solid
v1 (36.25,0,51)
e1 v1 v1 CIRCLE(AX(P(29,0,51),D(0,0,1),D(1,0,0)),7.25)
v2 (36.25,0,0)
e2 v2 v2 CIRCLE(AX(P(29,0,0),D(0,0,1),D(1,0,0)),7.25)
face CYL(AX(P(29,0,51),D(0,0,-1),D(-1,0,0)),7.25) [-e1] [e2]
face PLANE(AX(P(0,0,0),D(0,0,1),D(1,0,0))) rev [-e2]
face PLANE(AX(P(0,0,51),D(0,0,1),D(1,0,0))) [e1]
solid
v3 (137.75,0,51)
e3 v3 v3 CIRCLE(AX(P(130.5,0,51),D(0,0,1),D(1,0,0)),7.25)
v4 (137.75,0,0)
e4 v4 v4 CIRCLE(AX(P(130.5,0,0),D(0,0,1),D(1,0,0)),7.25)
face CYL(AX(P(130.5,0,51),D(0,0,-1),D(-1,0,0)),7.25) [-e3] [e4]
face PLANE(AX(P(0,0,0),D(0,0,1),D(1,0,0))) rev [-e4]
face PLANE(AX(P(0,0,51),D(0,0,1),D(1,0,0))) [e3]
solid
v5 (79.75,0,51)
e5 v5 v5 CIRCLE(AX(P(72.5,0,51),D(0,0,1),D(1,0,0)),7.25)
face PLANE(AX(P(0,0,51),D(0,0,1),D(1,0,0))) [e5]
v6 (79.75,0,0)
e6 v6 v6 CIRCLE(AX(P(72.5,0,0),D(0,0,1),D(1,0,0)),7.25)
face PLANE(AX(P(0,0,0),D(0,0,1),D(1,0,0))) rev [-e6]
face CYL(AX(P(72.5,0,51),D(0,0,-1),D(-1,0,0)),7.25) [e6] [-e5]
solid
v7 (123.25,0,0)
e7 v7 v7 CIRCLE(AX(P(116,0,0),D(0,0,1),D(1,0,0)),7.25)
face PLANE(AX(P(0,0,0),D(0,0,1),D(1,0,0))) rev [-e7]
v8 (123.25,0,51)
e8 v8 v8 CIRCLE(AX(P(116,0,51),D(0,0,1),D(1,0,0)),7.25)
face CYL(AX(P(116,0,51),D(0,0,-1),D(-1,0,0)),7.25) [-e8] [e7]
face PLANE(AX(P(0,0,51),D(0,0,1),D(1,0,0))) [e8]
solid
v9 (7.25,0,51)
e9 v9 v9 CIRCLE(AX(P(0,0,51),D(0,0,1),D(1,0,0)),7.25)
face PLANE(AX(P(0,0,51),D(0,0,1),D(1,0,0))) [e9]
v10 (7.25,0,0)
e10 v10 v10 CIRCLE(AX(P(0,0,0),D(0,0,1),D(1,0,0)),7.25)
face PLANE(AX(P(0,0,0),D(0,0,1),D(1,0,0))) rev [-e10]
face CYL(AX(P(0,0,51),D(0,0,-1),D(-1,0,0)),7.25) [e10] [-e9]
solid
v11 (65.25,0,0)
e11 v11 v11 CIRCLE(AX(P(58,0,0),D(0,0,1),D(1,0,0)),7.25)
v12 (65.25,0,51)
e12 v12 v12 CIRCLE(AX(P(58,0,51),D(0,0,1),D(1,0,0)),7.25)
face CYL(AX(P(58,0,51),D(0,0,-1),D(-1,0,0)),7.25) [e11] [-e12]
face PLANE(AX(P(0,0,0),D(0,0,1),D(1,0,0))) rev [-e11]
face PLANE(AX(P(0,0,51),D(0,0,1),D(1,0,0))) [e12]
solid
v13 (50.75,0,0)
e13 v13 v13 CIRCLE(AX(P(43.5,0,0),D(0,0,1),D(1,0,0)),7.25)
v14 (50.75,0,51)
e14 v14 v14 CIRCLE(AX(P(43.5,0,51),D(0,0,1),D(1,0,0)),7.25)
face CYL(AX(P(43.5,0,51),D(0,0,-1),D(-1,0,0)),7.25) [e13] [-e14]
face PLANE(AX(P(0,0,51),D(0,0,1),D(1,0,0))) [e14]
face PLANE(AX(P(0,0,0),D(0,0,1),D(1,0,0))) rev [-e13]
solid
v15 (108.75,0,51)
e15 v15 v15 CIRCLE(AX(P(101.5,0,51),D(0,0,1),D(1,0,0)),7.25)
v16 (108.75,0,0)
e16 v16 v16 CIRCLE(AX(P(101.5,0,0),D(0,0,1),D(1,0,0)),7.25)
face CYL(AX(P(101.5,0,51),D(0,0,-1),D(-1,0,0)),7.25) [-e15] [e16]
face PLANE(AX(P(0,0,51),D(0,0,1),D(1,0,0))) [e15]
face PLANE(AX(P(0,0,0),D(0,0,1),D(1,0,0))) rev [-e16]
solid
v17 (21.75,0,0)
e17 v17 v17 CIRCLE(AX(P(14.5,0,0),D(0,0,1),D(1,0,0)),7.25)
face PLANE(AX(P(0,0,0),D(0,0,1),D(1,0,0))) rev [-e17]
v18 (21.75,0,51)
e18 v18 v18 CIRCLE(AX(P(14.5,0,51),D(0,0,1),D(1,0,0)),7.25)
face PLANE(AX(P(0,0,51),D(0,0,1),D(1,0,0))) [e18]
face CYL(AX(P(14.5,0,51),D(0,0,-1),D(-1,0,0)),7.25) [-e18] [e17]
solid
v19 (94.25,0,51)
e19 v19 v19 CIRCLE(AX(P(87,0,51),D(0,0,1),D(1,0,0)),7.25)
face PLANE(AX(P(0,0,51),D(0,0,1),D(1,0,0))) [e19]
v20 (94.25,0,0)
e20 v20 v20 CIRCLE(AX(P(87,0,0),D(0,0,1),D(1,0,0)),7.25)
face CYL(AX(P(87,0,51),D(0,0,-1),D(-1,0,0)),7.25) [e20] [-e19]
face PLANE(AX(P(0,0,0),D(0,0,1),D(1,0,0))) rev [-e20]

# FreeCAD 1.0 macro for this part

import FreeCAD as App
import Part
import Sketcher

V = App.Vector

doc = App.newDocument("Part")
body = doc.addObject("PartDesign::Body", "Body")

sketch1 = doc.addObject("Sketcher::SketchObject", "Sketch")
body.addObject(sketch1)
sketch1.AttachmentSupport = (doc.XY_Plane, [""])
sketch1.MapMode = "FlatFace"
sketch1.addGeometry(Part.Circle(V(14.5, 0, 0), V(0, 0, 1), 7.25), False)
sketch1.addConstraint(Sketcher.Constraint("PointOnObject", 0, 3, -1))
sketch1.addConstraint(Sketcher.Constraint("Diameter", 0, 14.5))
sketch1.addConstraint(Sketcher.Constraint("DistanceX", -1, 1, 0, 3, 14.5))
pad1 = doc.addObject("PartDesign::Pad", "Pad")
body.addObject(pad1)
pad1.Profile = sketch1
pad1.Length = 51
body2 = doc.addObject("PartDesign::Body", "Body001")

sketch2 = doc.addObject("Sketcher::SketchObject", "Sketch001")
body2.addObject(sketch2)
sketch2.AttachmentSupport = (doc.getObject("XY_Plane001"), [""])
sketch2.MapMode = "FlatFace"
sketch2.addGeometry(Part.Circle(V(29, 0, 0), V(0, 0, 1), 7.25), False)
sketch2.addConstraint(Sketcher.Constraint("PointOnObject", 0, 3, -1))
sketch2.addConstraint(Sketcher.Constraint("Diameter", 0, 14.5))
sketch2.addConstraint(Sketcher.Constraint("DistanceX", -1, 1, 0, 3, 29.0))
pad2 = doc.addObject("PartDesign::Pad", "Pad001")
body2.addObject(pad2)
pad2.Profile = sketch2
pad2.Length = 51
body3 = doc.addObject("PartDesign::Body", "Body002")

sketch3 = doc.addObject("Sketcher::SketchObject", "Sketch002")
body3.addObject(sketch3)
sketch3.AttachmentSupport = (doc.getObject("XY_Plane002"), [""])
sketch3.MapMode = "FlatFace"
sketch3.addGeometry(Part.Circle(V(43.5, 0, 0), V(0, 0, 1), 7.25), False)
sketch3.addConstraint(Sketcher.Constraint("PointOnObject", 0, 3, -1))
sketch3.addConstraint(Sketcher.Constraint("Diameter", 0, 14.5))
sketch3.addConstraint(Sketcher.Constraint("DistanceX", -1, 1, 0, 3, 43.5))
pad3 = doc.addObject("PartDesign::Pad", "Pad002")
body3.addObject(pad3)
pad3.Profile = sketch3
pad3.Length = 51
body4 = doc.addObject("PartDesign::Body", "Body003")

sketch4 = doc.addObject("Sketcher::SketchObject", "Sketch003")
body4.addObject(sketch4)
sketch4.AttachmentSupport = (doc.getObject("XY_Plane003"), [""])
sketch4.MapMode = "FlatFace"
sketch4.addGeometry(Part.Circle(V(0, 0, 0), V(0, 0, 1), 7.25), False)
sketch4.addConstraint(Sketcher.Constraint("Coincident", 0, 3, -1, 1))
sketch4.addConstraint(Sketcher.Constraint("Diameter", 0, 14.5))
pad4 = doc.addObject("PartDesign::Pad", "Pad003")
body4.addObject(pad4)
pad4.Profile = sketch4
pad4.Length = 51
body5 = doc.addObject("PartDesign::Body", "Body004")

sketch5 = doc.addObject("Sketcher::SketchObject", "Sketch004")
body5.addObject(sketch5)
sketch5.AttachmentSupport = (doc.getObject("XY_Plane004"), [""])
sketch5.MapMode = "FlatFace"
sketch5.addGeometry(Part.Circle(V(58, 0, 0), V(0, 0, 1), 7.25), False)
sketch5.addConstraint(Sketcher.Constraint("PointOnObject", 0, 3, -1))
sketch5.addConstraint(Sketcher.Constraint("Diameter", 0, 14.5))
sketch5.addConstraint(Sketcher.Constraint("DistanceX", -1, 1, 0, 3, 58.0))
pad5 = doc.addObject("PartDesign::Pad", "Pad004")
body5.addObject(pad5)
pad5.Profile = sketch5
pad5.Length = 51
body6 = doc.addObject("PartDesign::Body", "Body005")

sketch6 = doc.addObject("Sketcher::SketchObject", "Sketch005")
body6.addObject(sketch6)
sketch6.AttachmentSupport = (doc.getObject("XY_Plane005"), [""])
sketch6.MapMode = "FlatFace"
sketch6.addGeometry(Part.Circle(V(72.5, 0, 0), V(0, 0, 1), 7.25), False)
sketch6.addConstraint(Sketcher.Constraint("PointOnObject", 0, 3, -1))
sketch6.addConstraint(Sketcher.Constraint("Diameter", 0, 14.5))
sketch6.addConstraint(Sketcher.Constraint("DistanceX", -1, 1, 0, 3, 72.5))
pad6 = doc.addObject("PartDesign::Pad", "Pad005")
body6.addObject(pad6)
pad6.Profile = sketch6
pad6.Length = 51
body7 = doc.addObject("PartDesign::Body", "Body006")

sketch7 = doc.addObject("Sketcher::SketchObject", "Sketch006")
body7.addObject(sketch7)
sketch7.AttachmentSupport = (doc.getObject("XY_Plane006"), [""])
sketch7.MapMode = "FlatFace"
sketch7.addGeometry(Part.Circle(V(87, 0, 0), V(0, 0, 1), 7.25), False)
sketch7.addConstraint(Sketcher.Constraint("PointOnObject", 0, 3, -1))
sketch7.addConstraint(Sketcher.Constraint("Diameter", 0, 14.5))
sketch7.addConstraint(Sketcher.Constraint("DistanceX", -1, 1, 0, 3, 87.0))
pad7 = doc.addObject("PartDesign::Pad", "Pad006")
body7.addObject(pad7)
pad7.Profile = sketch7
pad7.Length = 51
body8 = doc.addObject("PartDesign::Body", "Body007")

sketch8 = doc.addObject("Sketcher::SketchObject", "Sketch007")
body8.addObject(sketch8)
sketch8.AttachmentSupport = (doc.getObject("XY_Plane007"), [""])
sketch8.MapMode = "FlatFace"
sketch8.addGeometry(Part.Circle(V(101.5, 0, 0), V(0, 0, 1), 7.25), False)
sketch8.addConstraint(Sketcher.Constraint("PointOnObject", 0, 3, -1))
sketch8.addConstraint(Sketcher.Constraint("Diameter", 0, 14.5))
sketch8.addConstraint(Sketcher.Constraint("DistanceX", -1, 1, 0, 3, 101.5))
pad8 = doc.addObject("PartDesign::Pad", "Pad007")
body8.addObject(pad8)
pad8.Profile = sketch8
pad8.Length = 51
body9 = doc.addObject("PartDesign::Body", "Body008")

sketch9 = doc.addObject("Sketcher::SketchObject", "Sketch008")
body9.addObject(sketch9)
sketch9.AttachmentSupport = (doc.getObject("XY_Plane008"), [""])
sketch9.MapMode = "FlatFace"
sketch9.addGeometry(Part.Circle(V(116, 0, 0), V(0, 0, 1), 7.25), False)
sketch9.addConstraint(Sketcher.Constraint("PointOnObject", 0, 3, -1))
sketch9.addConstraint(Sketcher.Constraint("Diameter", 0, 14.5))
sketch9.addConstraint(Sketcher.Constraint("DistanceX", -1, 1, 0, 3, 116.0))
pad9 = doc.addObject("PartDesign::Pad", "Pad008")
body9.addObject(pad9)
pad9.Profile = sketch9
pad9.Length = 51
body10 = doc.addObject("PartDesign::Body", "Body009")

sketch10 = doc.addObject("Sketcher::SketchObject", "Sketch009")
body10.addObject(sketch10)
sketch10.AttachmentSupport = (doc.getObject("XY_Plane009"), [""])
sketch10.MapMode = "FlatFace"
sketch10.addGeometry(Part.Circle(V(130.5, 0, 0), V(0, 0, 1), 7.25), False)
sketch10.addConstraint(Sketcher.Constraint("PointOnObject", 0, 3, -1))
sketch10.addConstraint(Sketcher.Constraint("Diameter", 0, 14.5))
sketch10.addConstraint(Sketcher.Constraint("DistanceX", -1, 1, 0, 3, 130.5))
pad10 = doc.addObject("PartDesign::Pad", "Pad009")
body10.addObject(pad10)
pad10.Profile = sketch10
pad10.Length = 51

doc.recompute()
